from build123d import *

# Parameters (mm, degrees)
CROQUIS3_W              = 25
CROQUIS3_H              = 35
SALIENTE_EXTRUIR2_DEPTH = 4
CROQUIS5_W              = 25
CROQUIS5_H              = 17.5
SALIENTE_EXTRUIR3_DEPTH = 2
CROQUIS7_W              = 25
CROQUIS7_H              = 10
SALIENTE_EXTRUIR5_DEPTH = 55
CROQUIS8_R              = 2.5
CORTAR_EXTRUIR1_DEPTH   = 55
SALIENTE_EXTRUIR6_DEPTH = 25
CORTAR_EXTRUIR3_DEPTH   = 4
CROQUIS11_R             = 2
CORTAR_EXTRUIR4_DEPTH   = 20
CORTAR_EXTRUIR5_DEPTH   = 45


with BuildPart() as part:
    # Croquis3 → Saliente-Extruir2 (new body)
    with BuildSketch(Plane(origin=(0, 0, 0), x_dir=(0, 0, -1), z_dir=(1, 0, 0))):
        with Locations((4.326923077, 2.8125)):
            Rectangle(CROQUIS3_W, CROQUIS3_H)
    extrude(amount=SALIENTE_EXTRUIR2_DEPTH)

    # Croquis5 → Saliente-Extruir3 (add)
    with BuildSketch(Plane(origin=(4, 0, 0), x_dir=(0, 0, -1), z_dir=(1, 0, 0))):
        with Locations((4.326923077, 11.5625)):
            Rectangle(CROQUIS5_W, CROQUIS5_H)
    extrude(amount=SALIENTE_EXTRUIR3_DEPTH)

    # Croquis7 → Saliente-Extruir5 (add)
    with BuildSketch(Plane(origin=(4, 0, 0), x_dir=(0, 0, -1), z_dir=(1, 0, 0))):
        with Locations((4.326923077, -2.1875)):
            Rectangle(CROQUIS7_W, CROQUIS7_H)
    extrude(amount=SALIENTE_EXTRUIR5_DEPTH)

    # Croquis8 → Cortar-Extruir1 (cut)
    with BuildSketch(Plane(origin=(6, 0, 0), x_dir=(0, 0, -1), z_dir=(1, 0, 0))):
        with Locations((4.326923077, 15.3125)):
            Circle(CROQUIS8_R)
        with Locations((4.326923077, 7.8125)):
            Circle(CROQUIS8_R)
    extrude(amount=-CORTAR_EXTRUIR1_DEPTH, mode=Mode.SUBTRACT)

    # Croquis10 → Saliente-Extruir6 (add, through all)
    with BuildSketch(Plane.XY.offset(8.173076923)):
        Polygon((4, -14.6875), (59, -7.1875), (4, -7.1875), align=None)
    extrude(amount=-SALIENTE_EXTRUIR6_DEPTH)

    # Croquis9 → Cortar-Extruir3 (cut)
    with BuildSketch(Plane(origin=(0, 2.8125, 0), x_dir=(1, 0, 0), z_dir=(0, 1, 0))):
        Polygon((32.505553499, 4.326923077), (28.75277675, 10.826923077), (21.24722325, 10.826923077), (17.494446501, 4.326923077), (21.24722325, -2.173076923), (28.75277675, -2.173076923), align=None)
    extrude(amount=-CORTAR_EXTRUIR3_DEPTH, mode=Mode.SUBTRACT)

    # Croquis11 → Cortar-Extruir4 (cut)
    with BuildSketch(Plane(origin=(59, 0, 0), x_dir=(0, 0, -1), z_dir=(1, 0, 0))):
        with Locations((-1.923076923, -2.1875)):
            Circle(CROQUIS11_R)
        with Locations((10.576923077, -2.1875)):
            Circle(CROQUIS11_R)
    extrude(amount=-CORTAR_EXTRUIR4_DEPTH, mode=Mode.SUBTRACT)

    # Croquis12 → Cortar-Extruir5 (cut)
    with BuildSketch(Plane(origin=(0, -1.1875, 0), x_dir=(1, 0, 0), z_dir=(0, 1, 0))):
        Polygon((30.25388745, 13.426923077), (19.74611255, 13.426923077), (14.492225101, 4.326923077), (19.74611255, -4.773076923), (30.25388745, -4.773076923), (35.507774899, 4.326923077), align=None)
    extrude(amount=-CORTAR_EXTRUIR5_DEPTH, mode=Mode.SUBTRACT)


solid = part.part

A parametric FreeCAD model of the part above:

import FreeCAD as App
import Part
import Sketcher
Q = App.Units.Quantity


def add_polygon(sketch, points):
    """Adds a closed chain of lines whose ends are joined by coincident constraints."""
    first, n = sketch.GeometryCount, len(points)
    for a, b in zip(points, points[1:] + points[:1]):
        sketch.addGeometry(Part.LineSegment(App.Vector(*a, 0), App.Vector(*b, 0)), False)
    for i in range(n):
        sketch.addConstraint(Sketcher.Constraint("Coincident", first + i, 2, first + (i + 1) % n, 1))

doc = App.newDocument("Part")
body = doc.addObject("PartDesign::Body", "Body")

sketch1 = body.newObject("Sketcher::SketchObject", "Sketch")
sketch1.AttachmentSupport = (doc.getObject("YZ_Plane"), [""])
sketch1.MapMode = "FlatFace"
add_polygon(sketch1, [(20, 8), (-15, 8), (-15, -17), (20, -17)])
sketch1.addConstraint(Sketcher.Constraint("Horizontal", 0))
sketch1.addConstraint(Sketcher.Constraint("Vertical", 1))
sketch1.addConstraint(Sketcher.Constraint("Horizontal", 2))
sketch1.addConstraint(Sketcher.Constraint("Vertical", 3))
sketch1.addConstraint(Sketcher.Constraint("DistanceX", 0, 2, 0, 1, 35.0))
sketch1.addConstraint(Sketcher.Constraint("DistanceY", 1, 2, 1, 1, 25.0))
sketch1.addConstraint(Sketcher.Constraint("DistanceX", 0, 2, -1, 1, 14.6875))
sketch1.addConstraint(Sketcher.Constraint("DistanceY", -1, 1, 0, 2, 8.173077))
pad1 = body.newObject("PartDesign::Pad", "Pad")
pad1.Profile = sketch1
pad1.Length = 4

sketch2 = body.newObject("Sketcher::SketchObject", "Sketch001")
sketch2.AttachmentSupport = (doc.getObject("YZ_Plane"), [""])
sketch2.MapMode = "FlatFace"
sketch2.AttachmentOffset = App.Placement(App.Vector(0, 0, 4), App.Rotation())
add_polygon(sketch2, [(20, 8), (3, 8), (3, -17), (20, -17)])
sketch2.addConstraint(Sketcher.Constraint("Horizontal", 0))
sketch2.addConstraint(Sketcher.Constraint("Vertical", 1))
sketch2.addConstraint(Sketcher.Constraint("Horizontal", 2))
sketch2.addConstraint(Sketcher.Constraint("Vertical", 3))
sketch2.addConstraint(Sketcher.Constraint("DistanceY", 1, 2, 1, 1, 25.0))
sketch2.addConstraint(Sketcher.Constraint("DistanceX", 0, 2, 0, 1, 17.5))
sketch2.addConstraint(Sketcher.Constraint("DistanceX", -1, 1, 0, 2, 2.8125))
sketch2.addConstraint(Sketcher.Constraint("DistanceY", -1, 1, 0, 2, 8.173077))
pad2 = body.newObject("PartDesign::Pad", "Pad001")
pad2.Profile = sketch2
pad2.Length = 2

sketch3 = body.newObject("Sketcher::SketchObject", "Sketch002")
sketch3.AttachmentSupport = (doc.getObject("YZ_Plane"), [""])
sketch3.MapMode = "FlatFace"
sketch3.AttachmentOffset = App.Placement(App.Vector(0, 0, 4), App.Rotation())
add_polygon(sketch3, [(3, 8), (-7, 8), (-7, -17), (3, -17)])
sketch3.addConstraint(Sketcher.Constraint("Horizontal", 0))
sketch3.addConstraint(Sketcher.Constraint("Vertical", 1))
sketch3.addConstraint(Sketcher.Constraint("Horizontal", 2))
sketch3.addConstraint(Sketcher.Constraint("Vertical", 3))
sketch3.addConstraint(Sketcher.Constraint("DistanceX", 0, 2, 0, 1, 10.0))
sketch3.addConstraint(Sketcher.Constraint("DistanceY", 1, 2, 1, 1, 25.0))
sketch3.addConstraint(Sketcher.Constraint("DistanceX", 0, 2, -1, 1, 7.1875))
sketch3.addConstraint(Sketcher.Constraint("DistanceY", -1, 1, 0, 2, 8.173077))
pad3 = body.newObject("PartDesign::Pad", "Pad002")
pad3.Profile = sketch3
pad3.Length = 55

sketch4 = body.newObject("Sketcher::SketchObject", "Sketch003")
sketch4.AttachmentSupport = (doc.getObject("YZ_Plane"), [""])
sketch4.MapMode = "FlatFace"
sketch4.AttachmentOffset = App.Placement(App.Vector(0, 0, 6), App.Rotation())
sketch4.addGeometry(Part.Circle(App.Vector(15.3, -4.3, 0), App.Vector(0, 0, 1), 2.5), False)
sketch4.addGeometry(Part.Circle(App.Vector(7.8, -4.3, 0), App.Vector(0, 0, 1), 2.5), False)
sketch4.addConstraint(Sketcher.Constraint("Equal", 0, 1))
sketch4.addConstraint(Sketcher.Constraint("Horizontal", 0, 3, 1, 3))
sketch4.addConstraint(Sketcher.Constraint("Diameter", 0, 5.0))
sketch4.addConstraint(Sketcher.Constraint("DistanceX", 1, 3, 0, 3, 7.5))
sketch4.addConstraint(Sketcher.Constraint("DistanceX", -1, 1, 0, 3, 15.3125))
sketch4.addConstraint(Sketcher.Constraint("DistanceY", 0, 3, -1, 1, 4.326923))
pocket1 = body.newObject("PartDesign::Pocket", "Pocket")
pocket1.Profile = sketch4
pocket1.Length = 55

sketch5 = body.newObject("Sketcher::SketchObject", "Sketch004")
sketch5.AttachmentSupport = (doc.getObject("XY_Plane"), [""])
sketch5.MapMode = "FlatFace"
sketch5.AttachmentOffset = App.Placement(App.Vector(0, 0, 8.173077), App.Rotation())
add_polygon(sketch5, [(4, -15), (59, -7), (4, -7)])
sketch5.addConstraint(Sketcher.Constraint("Horizontal", 1))
sketch5.addConstraint(Sketcher.Constraint("Vertical", 2))
sketch5.addConstraint(Sketcher.Constraint("DistanceX", 1, 2, 1, 1, 55.0))
sketch5.addConstraint(Sketcher.Constraint("DistanceY", 2, 2, 2, 1, 7.5))
sketch5.addConstraint(Sketcher.Constraint("DistanceX", -1, 1, 0, 2, 59.0))
sketch5.addConstraint(Sketcher.Constraint("DistanceY", 0, 2, -1, 1, 7.1875))
pad4 = body.newObject("PartDesign::Pad", "Pad003")
pad4.Profile = sketch5
pad4.Length = 25
pad4.Reversed = True

sketch6 = body.newObject("Sketcher::SketchObject", "Sketch005")
sketch6.AttachmentSupport = (doc.getObject("XZ_Plane"), [""])
sketch6.MapMode = "FlatFace"
sketch6.AttachmentOffset = App.Placement(App.Vector(0, 0, -2.8125), App.Rotation())
add_polygon(sketch6, [(33, -4), (29, -11), (21, -11), (17, -4), (21, 2), (29, 2)])
sketch6.addConstraint(Sketcher.Constraint("Horizontal", 1))
sketch6.addConstraint(Sketcher.Constraint("Horizontal", 4))
sketch6.addConstraint(Sketcher.Constraint("Parallel", 0, 3))
sketch6.addConstraint(Sketcher.Constraint("Parallel", 2, 5))
sketch6.addConstraint(Sketcher.Constraint("Horizontal", 2, 2, 5, 2))
sketch6.addConstraint(Sketcher.Constraint("Vertical", 1, 2, 3, 2))
sketch6.addConstraint(Sketcher.Constraint("Vertical", 0, 2, 4, 2))
sketch6.addConstraint(Sketcher.Constraint("Angle", 0, Q("-120 deg")))
sketch6.addConstraint(Sketcher.Constraint("DistanceY", 1, 2, 3, 2, 13.0))
sketch6.addConstraint(Sketcher.Constraint("DistanceX", 1, 2, 1, 1, 7.505553))
sketch6.addConstraint(Sketcher.Constraint("DistanceX", -1, 1, 0, 2, 28.752777))
sketch6.addConstraint(Sketcher.Constraint("DistanceY", 0, 2, -1, 1, 10.826923))
pocket2 = body.newObject("PartDesign::Pocket", "Pocket001")
pocket2.Profile = sketch6
pocket2.Length = 4
pocket2.Reversed = True

sketch7 = body.newObject("Sketcher::SketchObject", "Sketch006")
sketch7.AttachmentSupport = (doc.getObject("YZ_Plane"), [""])
sketch7.MapMode = "FlatFace"
sketch7.AttachmentOffset = App.Placement(App.Vector(0, 0, 59), App.Rotation())
sketch7.addGeometry(Part.Circle(App.Vector(-2.2, 1.9, 0), App.Vector(0, 0, 1), 2), False)
sketch7.addGeometry(Part.Circle(App.Vector(-2.2, -10.6, 0), App.Vector(0, 0, 1), 2), False)
sketch7.addConstraint(Sketcher.Constraint("Equal", 0, 1))
sketch7.addConstraint(Sketcher.Constraint("Vertical", 0, 3, 1, 3))
sketch7.addConstraint(Sketcher.Constraint("Diameter", 0, 4.0))
sketch7.addConstraint(Sketcher.Constraint("DistanceY", 1, 3, 0, 3, 12.5))
sketch7.addConstraint(Sketcher.Constraint("DistanceX", 0, 3, -1, 1, 2.1875))
sketch7.addConstraint(Sketcher.Constraint("DistanceY", -1, 1, 0, 3, 1.923077))
pocket3 = body.newObject("PartDesign::Pocket", "Pocket002")
pocket3.Profile = sketch7
pocket3.Length = 20

sketch8 = body.newObject("Sketcher::SketchObject", "Sketch007")
sketch8.AttachmentSupport = (doc.getObject("XZ_Plane"), [""])
sketch8.MapMode = "FlatFace"
sketch8.AttachmentOffset = App.Placement(App.Vector(0, 0, 1.1875), App.Rotation())
add_polygon(sketch8, [(30, -13), (20, -13), (14, -4), (20, 5), (30, 5), (36, -4)])
sketch8.addConstraint(Sketcher.Constraint("Horizontal", 0))
sketch8.addConstraint(Sketcher.Constraint("Horizontal", 3))
sketch8.addConstraint(Sketcher.Constraint("Parallel", 1, 4))
sketch8.addConstraint(Sketcher.Constraint("Parallel", 2, 5))
sketch8.addConstraint(Sketcher.Constraint("Horizontal", 1, 2, 4, 2))
sketch8.addConstraint(Sketcher.Constraint("Vertical", 0, 2, 2, 2))
sketch8.addConstraint(Sketcher.Constraint("Vertical", 3, 2, 5, 2))
sketch8.addConstraint(Sketcher.Constraint("Angle", 1, Q("120 deg")))
sketch8.addConstraint(Sketcher.Constraint("DistanceY", 0, 2, 1, 2, 9.1))
sketch8.addConstraint(Sketcher.Constraint("DistanceX", 0, 2, 0, 1, 10.507775))
sketch8.addConstraint(Sketcher.Constraint("DistanceX", -1, 1, 0, 2, 19.746113))
sketch8.addConstraint(Sketcher.Constraint("DistanceY", 0, 2, -1, 1, 13.426923))
pocket4 = body.newObject("PartDesign::Pocket", "Pocket003")
pocket4.Profile = sketch8
pocket4.Length = 45
pocket4.Reversed = True

doc.recompute()
